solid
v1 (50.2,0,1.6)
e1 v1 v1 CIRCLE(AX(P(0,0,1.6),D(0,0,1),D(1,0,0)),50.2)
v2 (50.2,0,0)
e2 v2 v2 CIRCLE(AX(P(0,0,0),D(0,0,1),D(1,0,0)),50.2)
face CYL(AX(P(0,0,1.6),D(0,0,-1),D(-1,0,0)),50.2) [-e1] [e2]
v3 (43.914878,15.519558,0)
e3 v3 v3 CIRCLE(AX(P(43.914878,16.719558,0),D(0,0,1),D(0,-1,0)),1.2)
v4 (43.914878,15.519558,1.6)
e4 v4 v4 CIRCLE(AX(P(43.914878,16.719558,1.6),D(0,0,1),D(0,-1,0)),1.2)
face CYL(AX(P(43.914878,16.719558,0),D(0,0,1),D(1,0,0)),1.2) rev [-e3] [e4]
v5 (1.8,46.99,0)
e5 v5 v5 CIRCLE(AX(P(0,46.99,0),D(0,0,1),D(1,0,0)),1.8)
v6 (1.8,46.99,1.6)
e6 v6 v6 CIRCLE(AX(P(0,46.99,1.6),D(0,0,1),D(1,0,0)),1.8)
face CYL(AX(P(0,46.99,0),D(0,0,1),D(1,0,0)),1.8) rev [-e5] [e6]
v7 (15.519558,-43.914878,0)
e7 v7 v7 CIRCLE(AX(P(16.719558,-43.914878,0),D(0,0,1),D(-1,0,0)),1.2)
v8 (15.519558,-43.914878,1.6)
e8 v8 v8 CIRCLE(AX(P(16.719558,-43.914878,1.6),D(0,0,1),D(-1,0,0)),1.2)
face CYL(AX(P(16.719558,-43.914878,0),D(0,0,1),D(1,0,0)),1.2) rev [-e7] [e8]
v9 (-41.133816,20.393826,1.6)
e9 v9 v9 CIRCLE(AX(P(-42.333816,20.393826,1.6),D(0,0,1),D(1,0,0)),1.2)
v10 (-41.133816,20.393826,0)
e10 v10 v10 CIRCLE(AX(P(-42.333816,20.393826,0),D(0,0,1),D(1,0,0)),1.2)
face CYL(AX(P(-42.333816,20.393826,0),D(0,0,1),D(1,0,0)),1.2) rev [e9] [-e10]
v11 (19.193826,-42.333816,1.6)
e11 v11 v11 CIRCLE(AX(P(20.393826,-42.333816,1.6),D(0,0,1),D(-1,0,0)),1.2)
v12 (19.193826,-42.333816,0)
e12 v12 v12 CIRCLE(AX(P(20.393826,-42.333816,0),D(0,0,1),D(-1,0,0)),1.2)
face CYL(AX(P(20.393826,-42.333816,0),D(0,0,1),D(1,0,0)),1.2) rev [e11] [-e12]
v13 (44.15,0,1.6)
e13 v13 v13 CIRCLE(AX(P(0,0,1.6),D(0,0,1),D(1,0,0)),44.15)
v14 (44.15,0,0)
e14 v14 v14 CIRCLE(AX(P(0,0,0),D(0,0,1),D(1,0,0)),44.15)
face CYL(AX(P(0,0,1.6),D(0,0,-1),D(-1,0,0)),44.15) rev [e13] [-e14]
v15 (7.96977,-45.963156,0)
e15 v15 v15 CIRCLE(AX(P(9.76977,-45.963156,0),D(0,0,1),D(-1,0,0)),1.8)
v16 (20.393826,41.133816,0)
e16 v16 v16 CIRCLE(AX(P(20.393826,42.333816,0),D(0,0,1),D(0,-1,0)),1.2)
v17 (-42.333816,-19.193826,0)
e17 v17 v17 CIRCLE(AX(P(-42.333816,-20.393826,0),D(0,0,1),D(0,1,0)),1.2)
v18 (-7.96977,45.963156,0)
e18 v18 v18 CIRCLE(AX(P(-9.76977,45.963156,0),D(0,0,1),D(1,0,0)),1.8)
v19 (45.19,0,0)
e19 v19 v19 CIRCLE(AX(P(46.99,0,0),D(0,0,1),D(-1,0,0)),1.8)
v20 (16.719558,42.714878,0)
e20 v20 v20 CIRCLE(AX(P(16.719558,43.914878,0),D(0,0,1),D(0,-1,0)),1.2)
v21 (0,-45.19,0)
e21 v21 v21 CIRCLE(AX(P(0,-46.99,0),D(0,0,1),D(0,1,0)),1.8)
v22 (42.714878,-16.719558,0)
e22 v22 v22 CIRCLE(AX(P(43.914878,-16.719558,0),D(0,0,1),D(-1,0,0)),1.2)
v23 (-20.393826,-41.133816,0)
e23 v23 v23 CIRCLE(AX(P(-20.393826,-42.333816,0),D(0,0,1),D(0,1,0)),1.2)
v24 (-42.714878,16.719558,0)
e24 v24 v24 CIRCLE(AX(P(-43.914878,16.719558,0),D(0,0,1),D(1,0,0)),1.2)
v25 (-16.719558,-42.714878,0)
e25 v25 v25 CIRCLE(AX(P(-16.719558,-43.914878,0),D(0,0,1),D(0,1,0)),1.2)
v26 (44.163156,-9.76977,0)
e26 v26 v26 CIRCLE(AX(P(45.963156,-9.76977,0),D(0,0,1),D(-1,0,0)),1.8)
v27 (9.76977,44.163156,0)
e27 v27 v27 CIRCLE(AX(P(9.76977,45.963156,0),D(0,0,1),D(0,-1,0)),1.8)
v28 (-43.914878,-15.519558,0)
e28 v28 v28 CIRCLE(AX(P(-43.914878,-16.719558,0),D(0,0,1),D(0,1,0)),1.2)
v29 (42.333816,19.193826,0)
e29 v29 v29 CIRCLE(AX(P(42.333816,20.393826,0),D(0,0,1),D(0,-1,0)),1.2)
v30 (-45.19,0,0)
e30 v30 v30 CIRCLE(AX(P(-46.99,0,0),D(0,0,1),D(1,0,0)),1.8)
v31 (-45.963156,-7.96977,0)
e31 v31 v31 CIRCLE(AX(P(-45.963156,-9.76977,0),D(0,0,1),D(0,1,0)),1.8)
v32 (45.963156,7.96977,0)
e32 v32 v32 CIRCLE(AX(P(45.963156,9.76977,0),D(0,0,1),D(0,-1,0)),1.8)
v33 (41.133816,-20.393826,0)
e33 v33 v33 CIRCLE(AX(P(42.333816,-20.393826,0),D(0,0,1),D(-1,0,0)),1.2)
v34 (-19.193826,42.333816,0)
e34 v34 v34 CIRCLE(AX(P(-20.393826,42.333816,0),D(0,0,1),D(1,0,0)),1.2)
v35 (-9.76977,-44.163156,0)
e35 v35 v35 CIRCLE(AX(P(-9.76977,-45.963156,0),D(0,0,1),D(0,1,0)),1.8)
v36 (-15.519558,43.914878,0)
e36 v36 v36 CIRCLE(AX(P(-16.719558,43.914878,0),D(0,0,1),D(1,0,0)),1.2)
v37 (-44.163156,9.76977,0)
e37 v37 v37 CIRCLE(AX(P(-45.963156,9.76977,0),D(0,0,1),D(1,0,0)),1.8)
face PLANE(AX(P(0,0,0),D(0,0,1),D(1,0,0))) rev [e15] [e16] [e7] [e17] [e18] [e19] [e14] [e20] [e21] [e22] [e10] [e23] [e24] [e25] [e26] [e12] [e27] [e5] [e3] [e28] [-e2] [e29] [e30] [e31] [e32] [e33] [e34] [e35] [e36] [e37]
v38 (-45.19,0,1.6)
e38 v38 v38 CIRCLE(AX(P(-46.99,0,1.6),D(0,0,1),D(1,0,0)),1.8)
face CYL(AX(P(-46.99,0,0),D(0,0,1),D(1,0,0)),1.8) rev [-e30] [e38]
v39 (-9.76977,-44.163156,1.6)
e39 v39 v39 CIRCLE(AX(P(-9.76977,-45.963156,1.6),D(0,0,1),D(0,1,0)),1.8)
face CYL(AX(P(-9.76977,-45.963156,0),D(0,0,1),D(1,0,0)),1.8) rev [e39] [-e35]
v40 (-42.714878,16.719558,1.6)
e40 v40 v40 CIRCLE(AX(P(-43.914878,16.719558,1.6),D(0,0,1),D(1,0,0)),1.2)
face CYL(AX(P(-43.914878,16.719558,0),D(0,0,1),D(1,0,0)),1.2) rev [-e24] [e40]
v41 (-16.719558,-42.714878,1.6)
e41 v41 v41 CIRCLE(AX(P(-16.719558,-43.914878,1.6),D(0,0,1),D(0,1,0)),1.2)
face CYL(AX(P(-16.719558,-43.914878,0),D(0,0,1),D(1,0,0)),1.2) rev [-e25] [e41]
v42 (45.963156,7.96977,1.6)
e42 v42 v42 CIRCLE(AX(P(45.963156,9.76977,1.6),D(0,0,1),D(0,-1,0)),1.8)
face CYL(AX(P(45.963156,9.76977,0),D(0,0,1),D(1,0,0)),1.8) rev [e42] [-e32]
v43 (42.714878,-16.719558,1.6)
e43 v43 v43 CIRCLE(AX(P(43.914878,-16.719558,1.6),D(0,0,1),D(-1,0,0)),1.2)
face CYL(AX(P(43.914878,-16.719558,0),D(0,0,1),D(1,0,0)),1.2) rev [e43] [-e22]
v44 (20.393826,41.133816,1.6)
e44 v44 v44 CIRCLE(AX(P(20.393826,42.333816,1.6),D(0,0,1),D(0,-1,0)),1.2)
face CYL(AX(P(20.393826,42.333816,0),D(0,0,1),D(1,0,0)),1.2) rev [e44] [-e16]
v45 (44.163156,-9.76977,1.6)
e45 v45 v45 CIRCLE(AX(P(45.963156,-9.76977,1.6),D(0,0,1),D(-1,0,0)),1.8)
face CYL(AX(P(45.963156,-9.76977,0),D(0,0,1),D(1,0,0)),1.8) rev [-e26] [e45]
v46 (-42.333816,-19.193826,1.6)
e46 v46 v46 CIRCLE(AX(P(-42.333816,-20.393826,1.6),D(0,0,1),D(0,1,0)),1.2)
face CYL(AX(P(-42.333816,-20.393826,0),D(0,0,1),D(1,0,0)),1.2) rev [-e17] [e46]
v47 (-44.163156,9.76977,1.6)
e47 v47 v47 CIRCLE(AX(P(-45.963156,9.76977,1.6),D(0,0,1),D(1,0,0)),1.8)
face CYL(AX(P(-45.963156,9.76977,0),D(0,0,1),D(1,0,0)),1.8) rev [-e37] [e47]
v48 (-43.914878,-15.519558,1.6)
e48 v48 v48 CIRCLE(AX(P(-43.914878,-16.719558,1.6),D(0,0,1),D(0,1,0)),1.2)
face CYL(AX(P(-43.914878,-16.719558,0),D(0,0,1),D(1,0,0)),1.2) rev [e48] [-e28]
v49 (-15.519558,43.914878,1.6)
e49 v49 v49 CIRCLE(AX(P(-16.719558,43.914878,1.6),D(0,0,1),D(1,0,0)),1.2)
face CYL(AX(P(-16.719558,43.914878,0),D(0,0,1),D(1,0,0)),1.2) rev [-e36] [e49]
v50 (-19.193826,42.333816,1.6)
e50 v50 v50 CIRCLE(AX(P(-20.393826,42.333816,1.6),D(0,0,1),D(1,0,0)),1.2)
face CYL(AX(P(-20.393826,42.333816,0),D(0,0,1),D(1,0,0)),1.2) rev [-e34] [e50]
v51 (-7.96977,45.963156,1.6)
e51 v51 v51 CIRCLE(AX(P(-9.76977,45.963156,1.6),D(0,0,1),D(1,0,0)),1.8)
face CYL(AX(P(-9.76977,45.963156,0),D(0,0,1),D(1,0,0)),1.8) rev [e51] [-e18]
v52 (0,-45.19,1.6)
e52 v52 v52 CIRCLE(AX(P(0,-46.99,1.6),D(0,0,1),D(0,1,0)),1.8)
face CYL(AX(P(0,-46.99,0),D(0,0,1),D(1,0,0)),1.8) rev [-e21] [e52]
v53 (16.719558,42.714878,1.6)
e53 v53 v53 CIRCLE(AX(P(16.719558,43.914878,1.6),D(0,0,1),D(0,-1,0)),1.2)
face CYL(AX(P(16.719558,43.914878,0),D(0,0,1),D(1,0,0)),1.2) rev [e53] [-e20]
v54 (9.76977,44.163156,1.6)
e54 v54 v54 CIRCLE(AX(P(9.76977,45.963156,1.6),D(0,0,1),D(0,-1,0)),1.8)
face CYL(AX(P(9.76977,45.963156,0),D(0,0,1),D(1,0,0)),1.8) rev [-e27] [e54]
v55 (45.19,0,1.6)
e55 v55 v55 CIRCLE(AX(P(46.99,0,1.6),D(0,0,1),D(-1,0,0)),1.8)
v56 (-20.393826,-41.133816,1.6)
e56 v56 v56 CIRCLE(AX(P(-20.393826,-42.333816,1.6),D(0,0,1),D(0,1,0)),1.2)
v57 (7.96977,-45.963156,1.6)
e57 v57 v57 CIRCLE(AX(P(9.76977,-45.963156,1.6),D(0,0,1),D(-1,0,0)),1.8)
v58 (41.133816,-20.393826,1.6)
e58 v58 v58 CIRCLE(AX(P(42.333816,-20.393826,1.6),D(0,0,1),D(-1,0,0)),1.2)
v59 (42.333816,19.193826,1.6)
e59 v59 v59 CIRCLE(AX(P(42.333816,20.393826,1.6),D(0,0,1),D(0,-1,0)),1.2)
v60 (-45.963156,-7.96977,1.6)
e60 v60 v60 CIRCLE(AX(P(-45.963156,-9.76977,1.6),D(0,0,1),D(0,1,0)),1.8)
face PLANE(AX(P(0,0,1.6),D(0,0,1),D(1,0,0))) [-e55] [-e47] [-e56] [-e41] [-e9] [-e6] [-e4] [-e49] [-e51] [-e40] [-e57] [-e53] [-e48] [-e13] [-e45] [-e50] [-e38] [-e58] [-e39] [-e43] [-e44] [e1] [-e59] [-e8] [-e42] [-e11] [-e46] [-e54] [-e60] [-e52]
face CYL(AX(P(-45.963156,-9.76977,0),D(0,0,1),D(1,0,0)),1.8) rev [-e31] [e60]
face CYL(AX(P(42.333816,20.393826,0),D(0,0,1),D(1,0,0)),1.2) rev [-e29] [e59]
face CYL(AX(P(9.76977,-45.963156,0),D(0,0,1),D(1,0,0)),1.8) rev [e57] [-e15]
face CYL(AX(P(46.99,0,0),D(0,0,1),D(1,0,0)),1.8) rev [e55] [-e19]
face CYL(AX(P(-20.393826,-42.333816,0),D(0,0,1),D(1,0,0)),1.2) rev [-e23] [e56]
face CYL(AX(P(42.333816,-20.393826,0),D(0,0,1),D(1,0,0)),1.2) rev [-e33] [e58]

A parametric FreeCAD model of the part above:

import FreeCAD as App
import Part
import Sketcher
from FreeCAD import Vector

doc = App.newDocument("Part")
body = doc.addObject("PartDesign::Body", "Body")

# Sketch on XY plane
sketch1 = body.newObject("Sketcher::SketchObject", "Sketch")
sketch1.AttachmentSupport = (doc.getObject("XY_Plane"), [""])
sketch1.MapMode = "FlatFace"
sketch1.addGeometry(Part.Circle(Vector(0, 0, 0), Vector(0, 0, 1), 50), False)
sketch1.addGeometry(Part.Circle(Vector(0, 0, 0), Vector(0, 0, 1), 44), False)
sketch1.addConstraint(Sketcher.Constraint("Coincident", 0, 3, -1, 1))
sketch1.addConstraint(Sketcher.Constraint("Coincident", 1, 3, -1, 1))
sketch1.addConstraint(Sketcher.Constraint("Diameter", 0, 100.4))
sketch1.addConstraint(Sketcher.Constraint("Diameter", 1, 88.3))
pad1 = body.newObject("PartDesign::Pad", "Pad")
pad1.Profile = sketch1
pad1.Length = 1.6

# Sketch on XY plane
sketch2 = body.newObject("Sketcher::SketchObject", "Sketch001")
sketch2.AttachmentSupport = (doc.getObject("XY_Plane"), [""])
sketch2.MapMode = "FlatFace"
sketch2.AttachmentOffset = App.Placement(Vector(0, 0, 1.6), App.Rotation())
sketch2.addGeometry(Part.Circle(Vector(-46, 9.8, 0), Vector(0, 0, 1), 1.8), False)
sketch2.addGeometry(Part.Circle(Vector(-9.8, 46, 0), Vector(0, 0, 1), 1.8), False)
sketch2.addGeometry(Part.Circle(Vector(-42.3, 20.4, 0), Vector(0, 0, 1), 1.2), False)
sketch2.addGeometry(Part.Circle(Vector(-43.9, 16.7, 0), Vector(0, 0, 1), 1.2), False)
sketch2.addGeometry(Part.Circle(Vector(-20.4, 42.3, 0), Vector(0, 0, 1), 1.2), False)
sketch2.addGeometry(Part.Circle(Vector(-16.7, 43.9, 0), Vector(0, 0, 1), 1.2), False)
sketch2.addGeometry(Part.Circle(Vector(-47, 0, 0), Vector(0, 0, 1), 1.8), False)
sketch2.addGeometry(Part.Circle(Vector(0, 47, 0), Vector(0, 0, 1), 1.8), False)
sketch2.addConstraint(Sketcher.Constraint("Equal", 0, 1))
sketch2.addConstraint(Sketcher.Constraint("Equal", 2, 3))
sketch2.addConstraint(Sketcher.Constraint("Equal", 3, 4))
sketch2.addConstraint(Sketcher.Constraint("Equal", 4, 5))
sketch2.addConstraint(Sketcher.Constraint("Equal", 1, 6))
sketch2.addConstraint(Sketcher.Constraint("Equal", 6, 7))
sketch2.addConstraint(Sketcher.Constraint("PointOnObject", 6, 3, -1))
sketch2.addConstraint(Sketcher.Constraint("PointOnObject", 7, 3, -2))
sketch2.addConstraint(Sketcher.Constraint("Diameter", 0, 3.6))
sketch2.addConstraint(Sketcher.Constraint("Diameter", 2, 2.4))
sketch2.addConstraint(Sketcher.Constraint("DistanceX", 6, 3, -1, 1, 46.99))
sketch2.addConstraint(Sketcher.Constraint("DistanceY", -1, 1, 7, 3, 46.99))
sketch2.addConstraint(Sketcher.Constraint("DistanceY", -1, 1, 0, 3, 9.76977))
sketch2.addConstraint(Sketcher.Constraint("DistanceX", 1, 3, -1, 1, 9.76977))
sketch2.addConstraint(Sketcher.Constraint("DistanceY", -1, 1, 3, 3, 16.719558))
sketch2.addConstraint(Sketcher.Constraint("DistanceX", 5, 3, -1, 1, 16.719558))
sketch2.addConstraint(Sketcher.Constraint("DistanceX", 0, 3, 2, 3, 3.62934))
sketch2.addConstraint(Sketcher.Constraint("DistanceY", 2, 3, 1, 3, 25.56933))
sketch2.addConstraint(Sketcher.Constraint("DistanceX", 3, 3, 2, 3, 1.581062))
sketch2.addConstraint(Sketcher.Constraint("DistanceY", 4, 3, 1, 3, 3.62934))
sketch2.addConstraint(Sketcher.Constraint("DistanceX", 2, 3, 4, 3, 21.93999))
sketch2.addConstraint(Sketcher.Constraint("DistanceY", 4, 3, 5, 3, 1.581062))
sketch2.addConstraint(Sketcher.Constraint("DistanceX", 3, 3, 5, 3, 27.19532))
sketch2.addConstraint(Sketcher.Constraint("DistanceY", 3, 3, 5, 3, 27.19532))
pocket1 = body.newObject("PartDesign::Pocket", "Pocket")
pocket1.Profile = sketch2
pocket1.Type = "ThroughAll"
doc.recompute()

polarpattern = body.newObject("PartDesign::PolarPattern", "PolarPattern")
polarpattern.Originals = [pocket1]
polarpattern.Axis = (doc.getObject("Z_Axis"), [""])
polarpattern.Angle = 360
polarpattern.Occurrences = 4
body.Tip = polarpattern

doc.recompute()
